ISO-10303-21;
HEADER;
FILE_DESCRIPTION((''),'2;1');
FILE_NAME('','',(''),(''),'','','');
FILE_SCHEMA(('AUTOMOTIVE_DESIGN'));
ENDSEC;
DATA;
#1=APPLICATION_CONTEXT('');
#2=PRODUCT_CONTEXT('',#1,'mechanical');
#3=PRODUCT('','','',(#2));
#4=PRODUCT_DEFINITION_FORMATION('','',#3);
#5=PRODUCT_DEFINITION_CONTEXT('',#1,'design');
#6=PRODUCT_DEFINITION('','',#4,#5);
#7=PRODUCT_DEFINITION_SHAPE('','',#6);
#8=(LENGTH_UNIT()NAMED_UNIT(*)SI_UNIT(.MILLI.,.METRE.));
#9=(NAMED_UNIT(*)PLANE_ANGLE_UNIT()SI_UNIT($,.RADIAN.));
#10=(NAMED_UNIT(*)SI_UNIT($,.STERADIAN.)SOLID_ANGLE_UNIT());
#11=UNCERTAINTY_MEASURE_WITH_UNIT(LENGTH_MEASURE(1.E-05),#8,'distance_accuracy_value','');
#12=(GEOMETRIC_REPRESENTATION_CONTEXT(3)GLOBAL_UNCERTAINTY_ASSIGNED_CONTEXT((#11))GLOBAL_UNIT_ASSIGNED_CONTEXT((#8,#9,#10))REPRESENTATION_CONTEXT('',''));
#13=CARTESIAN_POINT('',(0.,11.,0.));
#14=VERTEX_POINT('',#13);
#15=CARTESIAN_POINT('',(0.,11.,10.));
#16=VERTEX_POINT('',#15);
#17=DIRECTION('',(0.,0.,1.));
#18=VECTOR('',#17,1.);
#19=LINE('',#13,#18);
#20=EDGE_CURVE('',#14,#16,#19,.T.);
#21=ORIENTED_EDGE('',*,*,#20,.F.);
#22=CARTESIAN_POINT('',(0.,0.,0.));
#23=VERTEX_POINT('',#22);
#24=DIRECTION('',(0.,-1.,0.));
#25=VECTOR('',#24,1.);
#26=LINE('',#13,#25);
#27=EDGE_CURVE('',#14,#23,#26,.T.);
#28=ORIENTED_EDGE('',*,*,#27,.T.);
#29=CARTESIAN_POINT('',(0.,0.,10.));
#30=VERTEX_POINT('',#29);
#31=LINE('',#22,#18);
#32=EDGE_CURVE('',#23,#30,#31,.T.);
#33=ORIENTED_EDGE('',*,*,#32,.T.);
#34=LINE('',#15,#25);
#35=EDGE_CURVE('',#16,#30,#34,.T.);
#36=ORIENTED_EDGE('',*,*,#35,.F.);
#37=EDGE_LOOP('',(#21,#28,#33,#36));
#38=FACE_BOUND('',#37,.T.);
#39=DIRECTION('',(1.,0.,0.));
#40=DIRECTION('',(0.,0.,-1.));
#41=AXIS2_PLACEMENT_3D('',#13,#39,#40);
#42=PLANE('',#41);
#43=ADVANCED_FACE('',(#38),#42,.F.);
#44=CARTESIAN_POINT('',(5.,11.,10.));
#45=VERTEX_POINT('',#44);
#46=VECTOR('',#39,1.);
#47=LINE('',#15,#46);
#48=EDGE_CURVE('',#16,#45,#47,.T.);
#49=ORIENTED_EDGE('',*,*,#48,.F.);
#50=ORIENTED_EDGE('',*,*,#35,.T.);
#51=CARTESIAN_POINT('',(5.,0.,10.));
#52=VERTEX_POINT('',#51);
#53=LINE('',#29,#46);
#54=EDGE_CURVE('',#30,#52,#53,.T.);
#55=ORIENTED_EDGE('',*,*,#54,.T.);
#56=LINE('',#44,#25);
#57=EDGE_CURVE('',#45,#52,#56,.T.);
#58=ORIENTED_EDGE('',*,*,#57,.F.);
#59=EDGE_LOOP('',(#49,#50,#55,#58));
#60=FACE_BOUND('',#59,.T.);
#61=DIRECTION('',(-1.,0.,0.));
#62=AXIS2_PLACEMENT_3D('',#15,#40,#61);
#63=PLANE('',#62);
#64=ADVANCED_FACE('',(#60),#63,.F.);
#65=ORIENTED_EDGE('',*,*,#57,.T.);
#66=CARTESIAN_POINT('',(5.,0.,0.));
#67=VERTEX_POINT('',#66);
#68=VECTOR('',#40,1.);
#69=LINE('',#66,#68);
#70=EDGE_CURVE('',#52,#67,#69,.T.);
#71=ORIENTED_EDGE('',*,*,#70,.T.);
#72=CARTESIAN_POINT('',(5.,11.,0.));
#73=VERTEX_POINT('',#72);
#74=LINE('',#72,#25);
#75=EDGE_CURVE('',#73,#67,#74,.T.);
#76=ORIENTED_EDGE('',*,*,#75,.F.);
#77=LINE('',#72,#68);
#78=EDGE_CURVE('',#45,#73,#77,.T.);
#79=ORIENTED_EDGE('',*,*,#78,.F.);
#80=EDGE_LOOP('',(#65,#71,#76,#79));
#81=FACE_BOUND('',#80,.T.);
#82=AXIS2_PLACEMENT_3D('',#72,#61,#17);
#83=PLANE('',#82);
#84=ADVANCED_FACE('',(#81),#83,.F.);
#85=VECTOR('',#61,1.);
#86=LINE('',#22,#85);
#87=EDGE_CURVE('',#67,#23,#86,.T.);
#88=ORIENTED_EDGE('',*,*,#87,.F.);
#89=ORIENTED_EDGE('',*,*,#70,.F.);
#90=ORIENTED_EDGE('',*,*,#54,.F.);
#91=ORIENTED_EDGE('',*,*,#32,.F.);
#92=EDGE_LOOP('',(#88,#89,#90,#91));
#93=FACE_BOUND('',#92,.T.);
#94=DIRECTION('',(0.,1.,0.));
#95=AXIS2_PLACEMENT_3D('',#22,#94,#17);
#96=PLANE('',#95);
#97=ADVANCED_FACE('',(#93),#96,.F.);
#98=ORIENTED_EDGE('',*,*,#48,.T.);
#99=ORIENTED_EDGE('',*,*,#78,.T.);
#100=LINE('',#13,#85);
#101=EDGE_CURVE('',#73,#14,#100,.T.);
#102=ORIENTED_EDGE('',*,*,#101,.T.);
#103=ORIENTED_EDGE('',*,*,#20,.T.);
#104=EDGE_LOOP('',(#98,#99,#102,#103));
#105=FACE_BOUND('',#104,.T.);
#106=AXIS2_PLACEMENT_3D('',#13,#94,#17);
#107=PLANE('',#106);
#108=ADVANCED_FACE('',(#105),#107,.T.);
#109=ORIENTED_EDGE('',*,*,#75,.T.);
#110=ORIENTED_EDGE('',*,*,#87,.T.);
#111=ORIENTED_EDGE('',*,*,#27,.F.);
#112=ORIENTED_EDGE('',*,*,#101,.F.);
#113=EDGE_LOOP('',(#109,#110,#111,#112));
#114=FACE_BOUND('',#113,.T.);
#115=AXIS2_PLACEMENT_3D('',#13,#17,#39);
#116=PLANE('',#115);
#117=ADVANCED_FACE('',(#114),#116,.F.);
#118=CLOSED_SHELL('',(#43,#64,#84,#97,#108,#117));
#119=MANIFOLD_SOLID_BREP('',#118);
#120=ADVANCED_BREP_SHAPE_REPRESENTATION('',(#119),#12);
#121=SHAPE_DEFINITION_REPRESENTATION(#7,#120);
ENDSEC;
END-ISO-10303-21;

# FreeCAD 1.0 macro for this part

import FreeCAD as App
import Part
import Sketcher

V = App.Vector
Q = App.Units.Quantity

doc = App.newDocument("Part")
body = doc.addObject("PartDesign::Body", "Body")

# Sketch on XZ plane
sketch1 = doc.addObject("Sketcher::SketchObject", "Sketch")
body.addObject(sketch1)
sketch1.AttachmentSupport = (doc.XZ_Plane, [""])
sketch1.MapMode = "FlatFace"
sketch1.addGeometry([
    Part.LineSegment(V(0, 0, 0), V(0, 10, 0)),
    Part.LineSegment(V(0, 10, 0), V(5, 10, 0)),
    Part.LineSegment(V(5, 10, 0), V(5, 0, 0)),
    Part.LineSegment(V(5, 0, 0), V(0, 0, 0)),
], False)
sketch1.addConstraint([
    Sketcher.Constraint("Coincident", 0, 2, 1, 1),
    Sketcher.Constraint("Coincident", 1, 2, 2, 1),
    Sketcher.Constraint("Coincident", 2, 2, 3, 1),
    Sketcher.Constraint("Coincident", 3, 2, 0, 1),
    Sketcher.Constraint("Vertical", 0),
    Sketcher.Constraint("Horizontal", 1),
    Sketcher.Constraint("Vertical", 2),
    Sketcher.Constraint("Horizontal", 3),
    Sketcher.Constraint("Coincident", 3, 2, -1, 1),
    Sketcher.Constraint("DistanceX", 1, 1, 1, 2, Q("5 mm")),
    Sketcher.Constraint("DistanceY", 0, 1, 0, 2, Q("10 mm")),
])
pad1 = doc.addObject("PartDesign::Pad", "Pad")
body.addObject(pad1)
pad1.Profile = sketch1
pad1.Length = 11
pad1.Reversed = True

doc.recompute()
